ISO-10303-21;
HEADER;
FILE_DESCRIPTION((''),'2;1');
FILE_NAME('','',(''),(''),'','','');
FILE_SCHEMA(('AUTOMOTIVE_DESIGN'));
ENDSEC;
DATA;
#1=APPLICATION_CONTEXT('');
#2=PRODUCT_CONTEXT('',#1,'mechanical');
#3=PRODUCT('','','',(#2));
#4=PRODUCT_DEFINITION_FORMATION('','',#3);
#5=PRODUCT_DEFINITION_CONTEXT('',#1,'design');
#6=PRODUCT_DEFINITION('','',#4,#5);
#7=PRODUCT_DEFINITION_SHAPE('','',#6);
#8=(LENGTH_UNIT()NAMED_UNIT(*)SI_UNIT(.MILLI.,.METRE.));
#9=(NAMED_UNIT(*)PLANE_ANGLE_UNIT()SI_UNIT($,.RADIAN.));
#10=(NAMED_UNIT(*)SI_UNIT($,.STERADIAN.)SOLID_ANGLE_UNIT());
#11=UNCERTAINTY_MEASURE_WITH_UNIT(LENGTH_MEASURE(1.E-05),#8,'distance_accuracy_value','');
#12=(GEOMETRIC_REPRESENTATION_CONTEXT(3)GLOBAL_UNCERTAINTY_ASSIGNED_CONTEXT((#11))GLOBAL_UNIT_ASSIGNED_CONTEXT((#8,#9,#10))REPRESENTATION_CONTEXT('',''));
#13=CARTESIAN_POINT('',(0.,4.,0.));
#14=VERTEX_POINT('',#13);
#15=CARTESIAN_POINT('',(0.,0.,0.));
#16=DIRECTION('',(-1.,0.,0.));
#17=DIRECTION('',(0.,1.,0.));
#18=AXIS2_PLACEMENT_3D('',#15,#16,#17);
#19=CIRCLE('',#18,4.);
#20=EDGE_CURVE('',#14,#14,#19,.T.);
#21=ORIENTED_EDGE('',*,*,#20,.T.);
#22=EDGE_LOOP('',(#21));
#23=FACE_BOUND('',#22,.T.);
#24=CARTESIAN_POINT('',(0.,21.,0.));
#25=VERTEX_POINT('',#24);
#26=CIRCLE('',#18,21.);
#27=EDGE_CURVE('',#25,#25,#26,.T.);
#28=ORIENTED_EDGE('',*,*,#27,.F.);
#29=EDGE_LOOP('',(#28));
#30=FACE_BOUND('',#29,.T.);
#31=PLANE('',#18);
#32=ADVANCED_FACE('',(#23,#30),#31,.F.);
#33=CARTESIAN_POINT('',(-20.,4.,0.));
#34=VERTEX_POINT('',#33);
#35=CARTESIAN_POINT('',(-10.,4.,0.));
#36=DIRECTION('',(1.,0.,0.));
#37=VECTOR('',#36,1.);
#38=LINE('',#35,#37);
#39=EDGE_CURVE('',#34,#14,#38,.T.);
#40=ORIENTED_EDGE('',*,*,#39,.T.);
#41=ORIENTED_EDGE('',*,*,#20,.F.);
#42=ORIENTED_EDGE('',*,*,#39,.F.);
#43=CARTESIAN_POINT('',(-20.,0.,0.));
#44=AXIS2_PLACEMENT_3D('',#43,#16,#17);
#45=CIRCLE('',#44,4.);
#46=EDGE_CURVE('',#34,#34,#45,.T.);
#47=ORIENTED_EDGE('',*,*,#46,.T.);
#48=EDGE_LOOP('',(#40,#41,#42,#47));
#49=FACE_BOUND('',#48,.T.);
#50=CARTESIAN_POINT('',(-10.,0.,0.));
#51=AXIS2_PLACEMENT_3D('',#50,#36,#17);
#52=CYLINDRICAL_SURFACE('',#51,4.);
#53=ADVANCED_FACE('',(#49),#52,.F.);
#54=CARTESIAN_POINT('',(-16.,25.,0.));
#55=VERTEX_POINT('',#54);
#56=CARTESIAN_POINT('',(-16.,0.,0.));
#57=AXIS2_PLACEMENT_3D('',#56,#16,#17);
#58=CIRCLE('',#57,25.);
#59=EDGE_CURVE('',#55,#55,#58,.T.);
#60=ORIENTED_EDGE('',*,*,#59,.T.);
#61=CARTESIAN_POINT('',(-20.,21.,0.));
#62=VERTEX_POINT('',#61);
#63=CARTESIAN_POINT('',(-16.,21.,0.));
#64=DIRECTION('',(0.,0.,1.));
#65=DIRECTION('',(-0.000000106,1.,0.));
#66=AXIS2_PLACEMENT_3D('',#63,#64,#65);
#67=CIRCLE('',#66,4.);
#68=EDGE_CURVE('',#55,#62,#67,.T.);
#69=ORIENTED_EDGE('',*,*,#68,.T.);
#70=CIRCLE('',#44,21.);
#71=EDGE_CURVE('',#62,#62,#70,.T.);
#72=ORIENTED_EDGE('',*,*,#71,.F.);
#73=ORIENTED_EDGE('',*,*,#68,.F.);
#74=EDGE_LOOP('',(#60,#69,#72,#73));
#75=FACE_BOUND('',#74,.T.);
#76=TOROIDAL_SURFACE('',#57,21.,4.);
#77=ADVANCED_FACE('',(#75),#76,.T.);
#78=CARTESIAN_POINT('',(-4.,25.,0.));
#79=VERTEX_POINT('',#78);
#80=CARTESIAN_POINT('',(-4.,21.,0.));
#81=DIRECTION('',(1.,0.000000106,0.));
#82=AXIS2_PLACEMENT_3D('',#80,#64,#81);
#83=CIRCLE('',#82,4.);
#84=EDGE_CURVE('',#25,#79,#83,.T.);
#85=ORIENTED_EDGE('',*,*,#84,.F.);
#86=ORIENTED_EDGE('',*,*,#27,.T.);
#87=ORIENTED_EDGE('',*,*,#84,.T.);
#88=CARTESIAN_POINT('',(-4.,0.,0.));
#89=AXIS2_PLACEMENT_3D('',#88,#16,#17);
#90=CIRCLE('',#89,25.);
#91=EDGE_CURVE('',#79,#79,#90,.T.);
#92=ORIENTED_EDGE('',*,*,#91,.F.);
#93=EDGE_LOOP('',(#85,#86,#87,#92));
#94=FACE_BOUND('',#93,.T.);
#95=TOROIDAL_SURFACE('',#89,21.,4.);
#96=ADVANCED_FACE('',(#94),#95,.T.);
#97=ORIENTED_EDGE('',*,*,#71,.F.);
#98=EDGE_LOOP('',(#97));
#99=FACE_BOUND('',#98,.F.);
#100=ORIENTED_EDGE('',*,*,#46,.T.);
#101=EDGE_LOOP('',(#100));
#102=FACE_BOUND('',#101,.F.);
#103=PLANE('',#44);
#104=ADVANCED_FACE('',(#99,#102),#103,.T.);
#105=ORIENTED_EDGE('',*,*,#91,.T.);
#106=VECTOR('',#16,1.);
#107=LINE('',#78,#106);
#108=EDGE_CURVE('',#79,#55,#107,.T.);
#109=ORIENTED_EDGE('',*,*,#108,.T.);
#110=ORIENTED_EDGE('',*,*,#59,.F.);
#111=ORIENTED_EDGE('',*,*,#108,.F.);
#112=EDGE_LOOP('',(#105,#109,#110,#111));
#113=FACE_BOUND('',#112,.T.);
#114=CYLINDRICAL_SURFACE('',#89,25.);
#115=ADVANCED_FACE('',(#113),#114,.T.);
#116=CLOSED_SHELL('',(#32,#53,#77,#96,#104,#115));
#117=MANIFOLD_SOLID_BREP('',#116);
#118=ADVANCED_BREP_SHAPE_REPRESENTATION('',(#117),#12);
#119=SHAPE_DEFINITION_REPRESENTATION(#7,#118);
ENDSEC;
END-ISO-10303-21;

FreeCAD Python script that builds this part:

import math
import FreeCAD as App
import Part
import Sketcher

V = App.Vector

doc = App.newDocument("Part")
body = doc.addObject("PartDesign::Body", "Body")

# Sketch on XY plane
sketch1 = doc.addObject("Sketcher::SketchObject", "Sketch")
body.addObject(sketch1)
sketch1.AttachmentSupport = (doc.XY_Plane, [""])
sketch1.MapMode = "FlatFace"
sketch1.addGeometry([
    Part.LineSegment(V(-20, 19, 0), V(-20, 4, 0)),
    Part.LineSegment(V(-20, 4, 0), V(0, 4, 0)),
    Part.LineSegment(V(0, 4, 0), V(0, 19, 0)),
    Part.LineSegment(V(0, 19, 0), V(-20, 19, 0)),
], False)
sketch1.addConstraint([
    Sketcher.Constraint("Coincident", 0, 2, 1, 1),
    Sketcher.Constraint("Coincident", 1, 2, 2, 1),
    Sketcher.Constraint("Coincident", 2, 2, 3, 1),
    Sketcher.Constraint("Coincident", 3, 2, 0, 1),
    Sketcher.Constraint("Vertical", 0),
    Sketcher.Constraint("Horizontal", 1),
    Sketcher.Constraint("Vertical", 2),
    Sketcher.Constraint("Horizontal", 3),
    Sketcher.Constraint("PointOnObject", 1, 2, -2),
    Sketcher.Constraint("DistanceX", 1, 1, 1, 2, 20.0),
    Sketcher.Constraint("DistanceY", 0, 2, 0, 1, 15.0),
    Sketcher.Constraint("DistanceY", -1, 1, 0, 2, 4.0),
])
revolution = doc.addObject("PartDesign::Revolution", "Revolution")
body.addObject(revolution)
revolution.Profile = sketch1
revolution.ReferenceAxis = (sketch1, ["H_Axis"])
revolution.Angle = 360

# Sketch on XY plane
sketch2 = doc.addObject("Sketcher::SketchObject", "Sketch001")
body.addObject(sketch2)
sketch2.AttachmentSupport = (doc.XY_Plane, [""])
sketch2.MapMode = "FlatFace"
sketch2.addGeometry([
    Part.LineSegment(V(-20, 19, 0), V(0, 19, 0)),  # 0
    Part.LineSegment(V(0, 19, 0), V(0, 21, 0)),  # 1
    Part.ArcOfCircle(Part.Circle(V(-4, 21, 0), V(0, 0, 1), 4), math.radians(0), math.radians(90)),  # 2
    Part.LineSegment(V(-4, 25, 0), V(-16, 25, 0)),  # 3
    Part.ArcOfCircle(Part.Circle(V(-16, 21, 0), V(0, 0, 1), 4), math.radians(90), math.radians(180)),  # 4
    Part.LineSegment(V(-20, 21, 0), V(-20, 19, 0)),  # 5
], False)
sketch2.addConstraint([
    Sketcher.Constraint("Coincident", 0, 2, 1, 1),
    Sketcher.Constraint("Tangent", 1, 2, 2, 1),
    Sketcher.Constraint("Tangent", 2, 2, 3, 1),
    Sketcher.Constraint("Tangent", 3, 2, 4, 1),
    Sketcher.Constraint("Tangent", 4, 2, 5, 1),
    Sketcher.Constraint("Coincident", 5, 2, 0, 1),
    Sketcher.Constraint("Horizontal", 0),
    Sketcher.Constraint("Vertical", 1),
    Sketcher.Constraint("Horizontal", 3),
    Sketcher.Constraint("Vertical", 5),
    Sketcher.Constraint("Equal", 2, 4),
    Sketcher.Constraint("PointOnObject", 0, 2, -2),
    Sketcher.Constraint("Radius", 2, 4.0),
    Sketcher.Constraint("DistanceX", 0, 1, 0, 2, 20.0),
    Sketcher.Constraint("DistanceY", 1, 1, 1, 2, 2.0),
    Sketcher.Constraint("DistanceY", -1, 1, 2, 3, 21.0),
])
revolution2 = doc.addObject("PartDesign::Revolution", "Revolution001")
body.addObject(revolution2)
revolution2.Profile = sketch2
revolution2.ReferenceAxis = (sketch2, ["H_Axis"])
revolution2.Angle = 360

doc.recompute()
